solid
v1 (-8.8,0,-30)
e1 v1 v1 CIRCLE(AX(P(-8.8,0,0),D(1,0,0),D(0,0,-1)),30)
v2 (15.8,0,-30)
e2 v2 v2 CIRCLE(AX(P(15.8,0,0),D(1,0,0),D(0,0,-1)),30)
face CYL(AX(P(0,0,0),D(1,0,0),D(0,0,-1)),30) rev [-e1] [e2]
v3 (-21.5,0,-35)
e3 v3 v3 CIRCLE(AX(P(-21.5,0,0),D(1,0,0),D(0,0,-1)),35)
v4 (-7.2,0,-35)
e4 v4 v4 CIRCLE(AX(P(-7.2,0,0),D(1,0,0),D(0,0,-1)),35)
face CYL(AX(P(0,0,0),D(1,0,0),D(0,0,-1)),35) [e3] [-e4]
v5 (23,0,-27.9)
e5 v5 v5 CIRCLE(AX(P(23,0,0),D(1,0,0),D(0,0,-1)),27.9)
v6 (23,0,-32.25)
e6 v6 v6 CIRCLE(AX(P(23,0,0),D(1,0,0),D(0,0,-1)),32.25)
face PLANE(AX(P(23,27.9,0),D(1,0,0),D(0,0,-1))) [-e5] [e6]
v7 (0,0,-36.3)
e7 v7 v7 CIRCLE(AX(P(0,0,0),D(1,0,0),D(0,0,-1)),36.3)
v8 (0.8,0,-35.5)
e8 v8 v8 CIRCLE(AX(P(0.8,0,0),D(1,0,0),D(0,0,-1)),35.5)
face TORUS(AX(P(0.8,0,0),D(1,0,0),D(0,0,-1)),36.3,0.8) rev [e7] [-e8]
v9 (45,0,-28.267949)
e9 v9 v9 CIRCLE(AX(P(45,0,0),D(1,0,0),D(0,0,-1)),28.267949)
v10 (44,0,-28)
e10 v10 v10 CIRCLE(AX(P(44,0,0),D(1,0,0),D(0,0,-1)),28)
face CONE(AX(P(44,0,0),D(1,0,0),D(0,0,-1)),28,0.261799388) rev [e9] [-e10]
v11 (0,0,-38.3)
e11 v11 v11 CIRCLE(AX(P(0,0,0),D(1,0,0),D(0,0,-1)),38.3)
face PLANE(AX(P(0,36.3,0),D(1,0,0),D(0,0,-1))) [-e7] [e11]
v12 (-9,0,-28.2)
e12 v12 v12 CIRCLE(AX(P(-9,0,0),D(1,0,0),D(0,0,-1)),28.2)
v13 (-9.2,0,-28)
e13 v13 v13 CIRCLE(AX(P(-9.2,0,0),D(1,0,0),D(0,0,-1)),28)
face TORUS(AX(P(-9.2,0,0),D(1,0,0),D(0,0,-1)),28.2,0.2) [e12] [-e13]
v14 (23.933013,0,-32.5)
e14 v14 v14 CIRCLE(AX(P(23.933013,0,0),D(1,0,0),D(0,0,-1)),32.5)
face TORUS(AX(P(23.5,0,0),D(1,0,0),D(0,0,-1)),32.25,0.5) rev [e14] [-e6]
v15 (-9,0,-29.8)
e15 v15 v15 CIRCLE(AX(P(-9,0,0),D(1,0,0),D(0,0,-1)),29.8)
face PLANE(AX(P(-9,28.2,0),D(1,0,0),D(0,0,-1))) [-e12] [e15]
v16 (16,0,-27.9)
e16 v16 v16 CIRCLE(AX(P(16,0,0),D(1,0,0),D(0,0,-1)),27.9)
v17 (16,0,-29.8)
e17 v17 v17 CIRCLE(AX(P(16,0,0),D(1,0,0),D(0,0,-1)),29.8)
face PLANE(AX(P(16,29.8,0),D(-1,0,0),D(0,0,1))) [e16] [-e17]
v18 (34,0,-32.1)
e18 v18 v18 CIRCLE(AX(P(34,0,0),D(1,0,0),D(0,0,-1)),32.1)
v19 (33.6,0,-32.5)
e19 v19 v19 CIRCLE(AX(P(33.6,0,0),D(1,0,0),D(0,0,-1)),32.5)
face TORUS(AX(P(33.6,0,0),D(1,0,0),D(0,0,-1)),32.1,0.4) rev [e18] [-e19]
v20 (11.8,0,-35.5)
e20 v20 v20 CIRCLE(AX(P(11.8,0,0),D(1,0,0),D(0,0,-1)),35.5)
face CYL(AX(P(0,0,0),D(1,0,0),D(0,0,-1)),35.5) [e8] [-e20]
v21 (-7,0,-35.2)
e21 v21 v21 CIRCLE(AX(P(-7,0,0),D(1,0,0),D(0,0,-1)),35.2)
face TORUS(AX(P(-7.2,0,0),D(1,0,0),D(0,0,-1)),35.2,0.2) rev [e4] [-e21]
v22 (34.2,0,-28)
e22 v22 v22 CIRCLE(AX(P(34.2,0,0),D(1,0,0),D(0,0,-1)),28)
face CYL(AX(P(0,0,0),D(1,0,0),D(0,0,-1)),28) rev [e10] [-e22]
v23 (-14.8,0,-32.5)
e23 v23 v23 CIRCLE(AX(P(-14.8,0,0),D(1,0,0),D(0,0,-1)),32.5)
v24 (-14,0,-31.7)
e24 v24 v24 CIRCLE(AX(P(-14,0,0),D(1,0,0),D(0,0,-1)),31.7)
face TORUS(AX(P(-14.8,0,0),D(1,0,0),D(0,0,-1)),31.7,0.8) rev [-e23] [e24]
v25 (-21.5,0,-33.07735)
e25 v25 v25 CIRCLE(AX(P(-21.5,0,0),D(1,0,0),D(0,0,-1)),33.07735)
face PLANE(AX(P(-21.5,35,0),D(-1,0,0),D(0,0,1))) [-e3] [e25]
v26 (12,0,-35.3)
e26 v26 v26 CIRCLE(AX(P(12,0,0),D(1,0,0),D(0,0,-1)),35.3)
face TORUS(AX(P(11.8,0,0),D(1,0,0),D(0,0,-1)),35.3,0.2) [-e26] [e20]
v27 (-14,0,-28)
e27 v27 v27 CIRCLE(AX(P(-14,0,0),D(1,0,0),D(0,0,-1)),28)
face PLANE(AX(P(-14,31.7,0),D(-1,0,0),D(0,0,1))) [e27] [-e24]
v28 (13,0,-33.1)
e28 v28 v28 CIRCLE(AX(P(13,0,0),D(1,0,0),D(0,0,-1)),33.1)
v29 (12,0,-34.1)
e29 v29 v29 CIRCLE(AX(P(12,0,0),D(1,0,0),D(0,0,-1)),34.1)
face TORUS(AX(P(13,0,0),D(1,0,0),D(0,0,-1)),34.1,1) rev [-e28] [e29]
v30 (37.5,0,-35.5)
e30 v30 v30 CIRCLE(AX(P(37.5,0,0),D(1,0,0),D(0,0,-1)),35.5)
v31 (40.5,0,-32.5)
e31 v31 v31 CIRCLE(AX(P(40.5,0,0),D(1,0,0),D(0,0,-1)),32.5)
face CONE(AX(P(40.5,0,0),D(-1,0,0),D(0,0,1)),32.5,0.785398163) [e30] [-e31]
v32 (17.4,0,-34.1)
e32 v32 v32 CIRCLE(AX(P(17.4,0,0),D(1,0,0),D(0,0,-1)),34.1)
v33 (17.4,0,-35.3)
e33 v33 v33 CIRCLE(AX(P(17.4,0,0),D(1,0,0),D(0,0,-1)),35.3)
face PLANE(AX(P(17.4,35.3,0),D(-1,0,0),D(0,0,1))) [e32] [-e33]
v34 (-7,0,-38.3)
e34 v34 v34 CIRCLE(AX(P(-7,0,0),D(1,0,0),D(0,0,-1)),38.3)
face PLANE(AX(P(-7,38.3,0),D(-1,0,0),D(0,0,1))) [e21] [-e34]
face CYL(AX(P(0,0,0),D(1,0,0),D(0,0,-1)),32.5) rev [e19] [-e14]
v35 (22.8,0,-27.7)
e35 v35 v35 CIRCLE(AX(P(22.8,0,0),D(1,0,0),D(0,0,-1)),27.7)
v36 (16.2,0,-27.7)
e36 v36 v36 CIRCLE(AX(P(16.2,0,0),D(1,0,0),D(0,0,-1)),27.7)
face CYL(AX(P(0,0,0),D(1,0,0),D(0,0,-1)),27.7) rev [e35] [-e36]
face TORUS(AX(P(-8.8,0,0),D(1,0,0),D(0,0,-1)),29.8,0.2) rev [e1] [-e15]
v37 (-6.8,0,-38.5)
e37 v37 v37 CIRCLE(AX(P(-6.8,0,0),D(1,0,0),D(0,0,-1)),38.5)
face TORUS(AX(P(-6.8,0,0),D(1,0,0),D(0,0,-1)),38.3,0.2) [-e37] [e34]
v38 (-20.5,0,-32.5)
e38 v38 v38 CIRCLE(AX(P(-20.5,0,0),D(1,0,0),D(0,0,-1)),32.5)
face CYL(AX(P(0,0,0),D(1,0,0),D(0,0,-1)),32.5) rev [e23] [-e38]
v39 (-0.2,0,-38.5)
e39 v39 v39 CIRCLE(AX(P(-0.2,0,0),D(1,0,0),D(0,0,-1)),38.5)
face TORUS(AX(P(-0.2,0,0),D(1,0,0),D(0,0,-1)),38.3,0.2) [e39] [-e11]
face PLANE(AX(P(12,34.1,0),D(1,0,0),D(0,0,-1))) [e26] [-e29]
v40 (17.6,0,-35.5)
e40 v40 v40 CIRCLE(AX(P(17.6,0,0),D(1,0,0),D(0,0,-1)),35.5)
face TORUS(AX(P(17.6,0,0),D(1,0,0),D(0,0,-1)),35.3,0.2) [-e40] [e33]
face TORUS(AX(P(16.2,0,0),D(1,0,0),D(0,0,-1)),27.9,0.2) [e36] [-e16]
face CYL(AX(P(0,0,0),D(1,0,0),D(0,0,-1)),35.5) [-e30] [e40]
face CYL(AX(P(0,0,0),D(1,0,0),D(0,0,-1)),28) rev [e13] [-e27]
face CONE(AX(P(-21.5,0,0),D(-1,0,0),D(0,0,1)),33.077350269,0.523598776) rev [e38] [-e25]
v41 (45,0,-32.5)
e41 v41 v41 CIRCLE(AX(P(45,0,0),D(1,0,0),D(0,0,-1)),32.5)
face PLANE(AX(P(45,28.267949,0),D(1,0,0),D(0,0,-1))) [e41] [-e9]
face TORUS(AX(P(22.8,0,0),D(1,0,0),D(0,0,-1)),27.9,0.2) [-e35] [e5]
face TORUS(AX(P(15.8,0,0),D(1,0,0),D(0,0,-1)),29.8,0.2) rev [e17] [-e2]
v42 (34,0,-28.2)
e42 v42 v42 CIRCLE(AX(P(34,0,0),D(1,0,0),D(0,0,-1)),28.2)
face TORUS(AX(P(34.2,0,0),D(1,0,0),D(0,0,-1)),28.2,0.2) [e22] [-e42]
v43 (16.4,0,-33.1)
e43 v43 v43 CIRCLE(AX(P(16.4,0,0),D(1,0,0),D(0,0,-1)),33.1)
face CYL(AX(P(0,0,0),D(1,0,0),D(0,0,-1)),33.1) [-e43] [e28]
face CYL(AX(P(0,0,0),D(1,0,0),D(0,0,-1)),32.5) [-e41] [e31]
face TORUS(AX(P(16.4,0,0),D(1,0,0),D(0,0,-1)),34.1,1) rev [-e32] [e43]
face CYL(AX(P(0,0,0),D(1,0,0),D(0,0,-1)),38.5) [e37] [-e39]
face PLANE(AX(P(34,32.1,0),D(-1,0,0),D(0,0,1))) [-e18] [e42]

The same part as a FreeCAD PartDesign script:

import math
import FreeCAD as App
import Part
import Sketcher

V = App.Vector
Q = App.Units.Quantity

doc = App.newDocument("Part")
params = doc.addObject("Spreadsheet::Sheet", "Params")
for row, (alias, value) in enumerate([
    ("sketch1_radius", "1 mm"),
    ("sketch1_radius2", "0.2 mm"),
    ("sketch1_radius3", "0.8 mm"),
    ("sketch1_radius4", "0.5 mm"),
    ("sketch1_radius5", "0.4 mm"),
    ("revolution_angle", "360 deg"),
], start=1):
    params.set(f"A{row}", alias)
    params.set(f"B{row}", "=" + value)
    params.setAlias(f"B{row}", alias)

body = doc.addObject("PartDesign::Body", "Body")

# Sketch on XY plane
sketch1 = body.newObject("Sketcher::SketchObject", "Sketch")
sketch1.AttachmentSupport = (doc.getObject("XY_Plane"), [""])
sketch1.MapMode = "FlatFace"
sketch1.addGeometry([
    Part.LineSegment(V(0, 36.3, 0), V(0, 38.3, 0)),  # 0
    Part.ArcOfCircle(Part.Circle(V(-0.2, 38.3, 0), V(0, 0, 1), 0.2), math.radians(0), math.radians(90)),  # 1
    Part.LineSegment(V(-0.2, 38.5, 0), V(-6.8, 38.5, 0)),  # 2
    Part.ArcOfCircle(Part.Circle(V(-6.8, 38.3, 0), V(0, 0, 1), 0.2), math.radians(90), math.radians(180)),  # 3
    Part.LineSegment(V(-7, 38.3, 0), V(-7, 35.2, 0)),  # 4
    Part.ArcOfCircle(Part.Circle(V(-7.2, 35.2, 0), V(0, 0, 1), 0.2), math.radians(-90), math.radians(0)),  # 5
    Part.LineSegment(V(-7.2, 35, 0), V(-21.5, 35, 0)),  # 6
    Part.LineSegment(V(-21.5, 35, 0), V(-21.5, 33.08, 0)),  # 7
    Part.LineSegment(V(-21.5, 33.08, 0), V(-20.5, 32.5, 0)),  # 8
    Part.LineSegment(V(-20.5, 32.5, 0), V(-14.8, 32.5, 0)),  # 9
    Part.ArcOfCircle(Part.Circle(V(-14.8, 31.7, 0), V(0, 0, 1), 0.8), math.radians(0), math.radians(90)),  # 10
    Part.LineSegment(V(-14, 31.7, 0), V(-14, 28, 0)),  # 11
    Part.LineSegment(V(-14, 28, 0), V(-9.2, 28, 0)),  # 12
    Part.ArcOfCircle(Part.Circle(V(-9.2, 28.2, 0), V(0, 0, 1), 0.2), math.radians(-90), math.radians(0)),  # 13
    Part.LineSegment(V(-9, 28.2, 0), V(-9, 29.8, 0)),  # 14
    Part.ArcOfCircle(Part.Circle(V(-8.8, 29.8, 0), V(0, 0, 1), 0.2), math.radians(90), math.radians(180)),  # 15
    Part.LineSegment(V(-8.8, 30, 0), V(15.8, 30, 0)),  # 16
    Part.ArcOfCircle(Part.Circle(V(15.8, 29.8, 0), V(0, 0, 1), 0.2), math.radians(0), math.radians(90)),  # 17
    Part.LineSegment(V(16, 29.8, 0), V(16, 27.9, 0)),  # 18
    Part.ArcOfCircle(Part.Circle(V(16.2, 27.9, 0), V(0, 0, 1), 0.2), math.radians(-180), math.radians(-90)),  # 19
    Part.LineSegment(V(16.2, 27.7, 0), V(22.8, 27.7, 0)),  # 20
    Part.ArcOfCircle(Part.Circle(V(22.8, 27.9, 0), V(0, 0, 1), 0.2), math.radians(-90), math.radians(0)),  # 21
    Part.LineSegment(V(23, 27.9, 0), V(23, 32.25, 0)),  # 22
    Part.ArcOfCircle(Part.Circle(V(23.5, 32.25, 0), V(0, 0, 1), 0.5), math.radians(30), math.radians(180)),  # 23
    Part.LineSegment(V(23.93, 32.5, 0), V(33.6, 32.5, 0)),  # 24
    Part.ArcOfCircle(Part.Circle(V(33.6, 32.1, 0), V(0, 0, 1), 0.4), math.radians(0), math.radians(90)),  # 25
    Part.LineSegment(V(34, 32.1, 0), V(34, 28.2, 0)),  # 26
    Part.ArcOfCircle(Part.Circle(V(34.2, 28.2, 0), V(0, 0, 1), 0.2), math.radians(-180), math.radians(-90)),  # 27
    Part.LineSegment(V(34.2, 28, 0), V(44, 28, 0)),  # 28
    Part.LineSegment(V(44, 28, 0), V(45, 28.27, 0)),  # 29
    Part.LineSegment(V(45, 28.27, 0), V(45, 32.5, 0)),  # 30
    Part.LineSegment(V(45, 32.5, 0), V(40.5, 32.5, 0)),  # 31
    Part.LineSegment(V(40.5, 32.5, 0), V(37.5, 35.5, 0)),  # 32
    Part.LineSegment(V(37.5, 35.5, 0), V(17.6, 35.5, 0)),  # 33
    Part.ArcOfCircle(Part.Circle(V(17.6, 35.3, 0), V(0, 0, 1), 0.2), math.radians(90), math.radians(180)),  # 34
    Part.LineSegment(V(17.4, 35.3, 0), V(17.4, 34.1, 0)),  # 35
    Part.ArcOfCircle(Part.Circle(V(16.4, 34.1, 0), V(0, 0, 1), 1), math.radians(-90), math.radians(0)),  # 36
    Part.LineSegment(V(16.4, 33.1, 0), V(13, 33.1, 0)),  # 37
    Part.ArcOfCircle(Part.Circle(V(13, 34.1, 0), V(0, 0, 1), 1), math.radians(-180), math.radians(-90)),  # 38
    Part.LineSegment(V(12, 34.1, 0), V(12, 35.3, 0)),  # 39
    Part.ArcOfCircle(Part.Circle(V(11.8, 35.3, 0), V(0, 0, 1), 0.2), math.radians(0), math.radians(90)),  # 40
    Part.LineSegment(V(11.8, 35.5, 0), V(0.8, 35.5, 0)),  # 41
    Part.ArcOfCircle(Part.Circle(V(0.8, 36.3, 0), V(0, 0, 1), 0.8), math.radians(180), math.radians(270)),  # 42
], False)
sketch1.addConstraint([
    Sketcher.Constraint("Tangent", 0, 2, 1, 1),
    Sketcher.Constraint("Tangent", 1, 2, 2, 1),
    Sketcher.Constraint("Tangent", 2, 2, 3, 1),
    Sketcher.Constraint("Tangent", 3, 2, 4, 1),
    Sketcher.Constraint("Tangent", 4, 2, 5, 2),
    Sketcher.Constraint("Tangent", 5, 1, 6, 1),
    Sketcher.Constraint("Coincident", 6, 2, 7, 1),
    Sketcher.Constraint("Coincident", 7, 2, 8, 1),
    Sketcher.Constraint("Coincident", 8, 2, 9, 1),
    Sketcher.Constraint("Tangent", 9, 2, 10, 2),
    Sketcher.Constraint("Tangent", 10, 1, 11, 1),
    Sketcher.Constraint("Coincident", 11, 2, 12, 1),
    Sketcher.Constraint("Tangent", 12, 2, 13, 1),
    Sketcher.Constraint("Tangent", 13, 2, 14, 1),
    Sketcher.Constraint("Tangent", 14, 2, 15, 2),
    Sketcher.Constraint("Tangent", 15, 1, 16, 1),
    Sketcher.Constraint("Tangent", 16, 2, 17, 2),
    Sketcher.Constraint("Tangent", 17, 1, 18, 1),
    Sketcher.Constraint("Tangent", 18, 2, 19, 1),
    Sketcher.Constraint("Tangent", 19, 2, 20, 1),
    Sketcher.Constraint("Tangent", 20, 2, 21, 1),
    Sketcher.Constraint("Tangent", 21, 2, 22, 1),
    Sketcher.Constraint("Tangent", 22, 2, 23, 2),
    Sketcher.Constraint("Coincident", 23, 1, 24, 1),
    Sketcher.Constraint("Tangent", 24, 2, 25, 2),
    Sketcher.Constraint("Tangent", 25, 1, 26, 1),
    Sketcher.Constraint("Tangent", 26, 2, 27, 1),
    Sketcher.Constraint("Tangent", 27, 2, 28, 1),
    Sketcher.Constraint("Coincident", 28, 2, 29, 1),
    Sketcher.Constraint("Coincident", 29, 2, 30, 1),
    Sketcher.Constraint("Coincident", 30, 2, 31, 1),
    Sketcher.Constraint("Coincident", 31, 2, 32, 1),
    Sketcher.Constraint("Coincident", 32, 2, 33, 1),
    Sketcher.Constraint("Tangent", 33, 2, 34, 1),
    Sketcher.Constraint("Tangent", 34, 2, 35, 1),
    Sketcher.Constraint("Tangent", 35, 2, 36, 2),
    Sketcher.Constraint("Tangent", 36, 1, 37, 1),
    Sketcher.Constraint("Tangent", 37, 2, 38, 2),
    Sketcher.Constraint("Tangent", 38, 1, 39, 1),
    Sketcher.Constraint("Tangent", 39, 2, 40, 1),
    Sketcher.Constraint("Tangent", 40, 2, 41, 1),
    Sketcher.Constraint("Tangent", 41, 2, 42, 2),
    Sketcher.Constraint("Tangent", 42, 1, 0, 1),
    Sketcher.Constraint("Vertical", 0),
    Sketcher.Constraint("Horizontal", 2),
    Sketcher.Constraint("Vertical", 4),
    Sketcher.Constraint("Horizontal", 6),
    Sketcher.Constraint("Vertical", 7),
    Sketcher.Constraint("Horizontal", 9),
    Sketcher.Constraint("Vertical", 11),
    Sketcher.Constraint("Horizontal", 12),
    Sketcher.Constraint("Vertical", 14),
    Sketcher.Constraint("Horizontal", 16),
    Sketcher.Constraint("Vertical", 18),
    Sketcher.Constraint("Horizontal", 20),
    Sketcher.Constraint("Vertical", 22),
    Sketcher.Constraint("Horizontal", 24),
    Sketcher.Constraint("Vertical", 26),
    Sketcher.Constraint("Horizontal", 28),
    Sketcher.Constraint("Vertical", 30),
    Sketcher.Constraint("Horizontal", 31),
    Sketcher.Constraint("Horizontal", 33),
    Sketcher.Constraint("Vertical", 35),
    Sketcher.Constraint("Horizontal", 37),
    Sketcher.Constraint("Vertical", 39),
    Sketcher.Constraint("Horizontal", 41),
    Sketcher.Constraint("Equal", 1, 3),
    Sketcher.Constraint("Equal", 3, 5),
    Sketcher.Constraint("Equal", 5, 13),
    Sketcher.Constraint("Equal", 13, 15),
    Sketcher.Constraint("Equal", 15, 17),
    Sketcher.Constraint("Equal", 17, 19),
    Sketcher.Constraint("Equal", 19, 21),
    Sketcher.Constraint("Equal", 21, 27),
    Sketcher.Constraint("Equal", 27, 34),
    Sketcher.Constraint("Equal", 36, 38),
    Sketcher.Constraint("Equal", 34, 40),
    Sketcher.Constraint("Equal", 10, 42),
    Sketcher.Constraint("PointOnObject", 0, 2, -2),
    Sketcher.Constraint("Horizontal", 13, 3, 27, 3),
    Sketcher.Constraint("Horizontal", 34, 3, 40, 3),
    Sketcher.Constraint("Horizontal", 9, 2, 23, 1),
    Sketcher.Constraint("Horizontal", 24, 2, 30, 2),
    Sketcher.Constraint("Equal", 2, 20),
    Sketcher.Constraint("Radius", 36, Q("1 mm")),
    Sketcher.Constraint("Radius", 1, Q("0.2 mm")),
    Sketcher.Constraint("Radius", 10, Q("0.8 mm")),
    Sketcher.Constraint("Radius", 23, Q("0.5 mm")),
    Sketcher.Constraint("Radius", 25, Q("0.4 mm")),
    Sketcher.Constraint("DistanceX", 41, 2, 41, 1, Q("11 mm")),
    Sketcher.Constraint("DistanceY", 0, 1, 0, 2, Q("2 mm")),
    Sketcher.Constraint("Angle", 8, Q("-30 deg")),
    Sketcher.Constraint("Angle", 29, Q("15 deg")),
    Sketcher.Constraint("Angle", 32, Q("135 deg")),
    Sketcher.Constraint("DistanceX", 2, 2, 2, 1, Q("6.6 mm")),
    Sketcher.Constraint("DistanceX", 6, 2, 6, 1, Q("14.3 mm")),
    Sketcher.Constraint("DistanceX", 9, 1, 9, 2, Q("5.7 mm")),
    Sketcher.Constraint("DistanceX", 12, 1, 12, 2, Q("4.8 mm")),
    Sketcher.Constraint("DistanceX", 16, 1, 16, 2, Q("24.6 mm")),
    Sketcher.Constraint("DistanceX", 28, 1, 28, 2, Q("9.8 mm")),
    Sketcher.Constraint("DistanceX", 31, 2, 31, 1, Q("4.5 mm")),
    Sketcher.Constraint("DistanceX", 33, 2, 33, 1, Q("19.9 mm")),
    Sketcher.Constraint("DistanceX", 37, 2, 37, 1, Q("3.4 mm")),
    Sketcher.Constraint("DistanceY", 4, 2, 4, 1, Q("3.1 mm")),
    Sketcher.Constraint("DistanceY", 11, 2, 11, 1, Q("3.7 mm")),
    Sketcher.Constraint("DistanceY", 14, 1, 14, 2, Q("1.6 mm")),
    Sketcher.Constraint("DistanceY", 18, 2, 18, 1, Q("1.9 mm")),
    Sketcher.Constraint("DistanceY", 35, 2, 35, 1, Q("1.2 mm")),
    Sketcher.Constraint("DistanceY", -1, 1, 5, 1, Q("35 mm")),
    Sketcher.Constraint("DistanceX", 10, 1, -1, 1, Q("14 mm")),
    Sketcher.Constraint("DistanceY", -1, 1, 11, 2, Q("28 mm")),
    Sketcher.Constraint("DistanceX", -1, 1, 25, 1, Q("34 mm")),
    Sketcher.Constraint("DistanceY", 22, 1, 22, 2, Q("4.35 mm")),
])
sketch1.setExpression("Constraints[84]", "Params.sketch1_radius")
sketch1.setExpression("Constraints[85]", "Params.sketch1_radius2")
sketch1.setExpression("Constraints[86]", "Params.sketch1_radius3")
sketch1.setExpression("Constraints[87]", "Params.sketch1_radius4")
sketch1.setExpression("Constraints[88]", "Params.sketch1_radius5")
revolution = body.newObject("PartDesign::Revolution", "Revolution")
revolution.Profile = sketch1
revolution.ReferenceAxis = (sketch1, ["H_Axis"])
revolution.setExpression("Angle", "Params.revolution_angle")

doc.recompute()
